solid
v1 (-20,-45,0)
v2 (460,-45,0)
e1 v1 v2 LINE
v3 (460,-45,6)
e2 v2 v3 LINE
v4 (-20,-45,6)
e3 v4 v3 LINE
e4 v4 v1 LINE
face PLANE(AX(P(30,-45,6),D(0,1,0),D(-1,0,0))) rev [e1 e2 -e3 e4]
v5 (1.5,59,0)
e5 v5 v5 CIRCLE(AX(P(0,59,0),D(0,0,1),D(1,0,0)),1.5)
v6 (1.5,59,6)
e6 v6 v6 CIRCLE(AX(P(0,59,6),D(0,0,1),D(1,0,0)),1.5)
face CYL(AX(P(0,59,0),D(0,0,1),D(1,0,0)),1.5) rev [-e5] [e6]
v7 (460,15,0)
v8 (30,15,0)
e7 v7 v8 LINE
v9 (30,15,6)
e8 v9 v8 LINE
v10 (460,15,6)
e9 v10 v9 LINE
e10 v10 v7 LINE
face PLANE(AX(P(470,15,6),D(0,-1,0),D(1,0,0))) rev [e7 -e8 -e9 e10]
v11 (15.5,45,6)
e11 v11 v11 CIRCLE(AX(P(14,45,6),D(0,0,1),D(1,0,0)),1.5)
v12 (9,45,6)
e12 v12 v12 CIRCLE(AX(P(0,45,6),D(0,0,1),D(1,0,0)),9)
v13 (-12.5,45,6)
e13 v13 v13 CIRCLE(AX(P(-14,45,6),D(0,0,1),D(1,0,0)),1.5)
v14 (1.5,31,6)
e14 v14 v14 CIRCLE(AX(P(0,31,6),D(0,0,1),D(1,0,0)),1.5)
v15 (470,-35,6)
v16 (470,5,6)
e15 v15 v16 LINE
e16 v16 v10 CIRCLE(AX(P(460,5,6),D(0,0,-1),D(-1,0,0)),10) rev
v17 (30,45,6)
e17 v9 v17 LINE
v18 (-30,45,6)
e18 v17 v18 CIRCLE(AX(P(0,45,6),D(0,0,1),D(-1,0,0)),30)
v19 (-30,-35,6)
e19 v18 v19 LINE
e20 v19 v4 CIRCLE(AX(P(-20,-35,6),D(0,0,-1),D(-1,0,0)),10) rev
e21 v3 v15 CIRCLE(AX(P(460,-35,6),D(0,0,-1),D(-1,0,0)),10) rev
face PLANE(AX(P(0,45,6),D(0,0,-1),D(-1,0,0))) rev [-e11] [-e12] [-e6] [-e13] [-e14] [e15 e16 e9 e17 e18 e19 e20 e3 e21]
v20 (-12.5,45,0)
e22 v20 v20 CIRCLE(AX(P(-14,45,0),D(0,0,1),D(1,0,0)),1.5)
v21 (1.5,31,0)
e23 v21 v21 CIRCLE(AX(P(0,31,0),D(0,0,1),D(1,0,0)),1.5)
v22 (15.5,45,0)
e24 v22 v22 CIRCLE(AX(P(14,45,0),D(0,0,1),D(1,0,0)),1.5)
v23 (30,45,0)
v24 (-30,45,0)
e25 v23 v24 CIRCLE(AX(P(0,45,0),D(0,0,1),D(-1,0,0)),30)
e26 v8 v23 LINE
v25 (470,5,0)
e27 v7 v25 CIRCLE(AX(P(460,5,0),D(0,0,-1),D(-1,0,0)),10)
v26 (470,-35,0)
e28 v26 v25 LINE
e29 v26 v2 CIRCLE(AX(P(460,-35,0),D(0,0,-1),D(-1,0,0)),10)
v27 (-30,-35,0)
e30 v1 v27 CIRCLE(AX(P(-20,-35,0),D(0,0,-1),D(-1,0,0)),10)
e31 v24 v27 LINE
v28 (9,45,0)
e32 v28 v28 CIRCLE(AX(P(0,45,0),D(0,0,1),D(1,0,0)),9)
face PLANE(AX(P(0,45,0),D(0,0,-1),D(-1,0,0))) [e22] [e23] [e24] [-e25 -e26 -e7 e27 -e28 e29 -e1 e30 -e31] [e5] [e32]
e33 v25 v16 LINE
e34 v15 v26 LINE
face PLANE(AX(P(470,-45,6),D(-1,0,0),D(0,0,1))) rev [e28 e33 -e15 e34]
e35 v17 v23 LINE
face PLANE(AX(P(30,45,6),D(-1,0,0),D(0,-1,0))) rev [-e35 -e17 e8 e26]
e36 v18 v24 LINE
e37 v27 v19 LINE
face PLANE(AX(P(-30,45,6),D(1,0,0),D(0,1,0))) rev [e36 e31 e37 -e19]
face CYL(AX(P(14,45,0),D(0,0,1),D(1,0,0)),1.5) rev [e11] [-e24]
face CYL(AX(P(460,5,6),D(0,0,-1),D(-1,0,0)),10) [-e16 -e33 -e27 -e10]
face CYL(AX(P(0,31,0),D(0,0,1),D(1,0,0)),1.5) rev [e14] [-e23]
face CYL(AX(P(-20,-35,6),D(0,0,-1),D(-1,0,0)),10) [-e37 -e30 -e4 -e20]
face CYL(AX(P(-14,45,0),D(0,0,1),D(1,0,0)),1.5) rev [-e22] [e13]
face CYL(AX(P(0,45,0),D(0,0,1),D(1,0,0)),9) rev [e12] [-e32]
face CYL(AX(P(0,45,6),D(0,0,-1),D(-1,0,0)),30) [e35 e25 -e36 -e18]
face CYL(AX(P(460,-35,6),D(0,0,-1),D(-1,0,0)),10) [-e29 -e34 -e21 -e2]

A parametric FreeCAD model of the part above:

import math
import FreeCAD as App
import Part
import Sketcher


def edges_at(feature, points):
    """Names of the edges that pass closest to the given points."""
    edges = feature.Shape.Edges
    near = lambda p: min(range(len(edges)), key=lambda i: edges[i].distToShape(Part.Vertex(*p))[0])
    return sorted({f"Edge{near(p) + 1}" for p in points})

doc = App.newDocument("Part")
body = doc.addObject("PartDesign::Body", "Body")

# Sketch on XY plane
sketch1 = body.newObject("Sketcher::SketchObject", "Sketch")
sketch1.AttachmentSupport = (doc.getObject("XY_Plane"), [""])
sketch1.MapMode = "FlatFace"
sketch1.addGeometry([
    Part.LineSegment(App.Vector(470, -45, 0), App.Vector(470, 15, 0)),  # 0
    Part.LineSegment(App.Vector(470, 15, 0), App.Vector(30, 15, 0)),  # 1
    Part.LineSegment(App.Vector(30, 15, 0), App.Vector(30, 45, 0)),  # 2
    Part.ArcOfCircle(Part.Circle(App.Vector(0, 45, 0), App.Vector(0, 0, 1), 30), math.radians(0), math.radians(180)),  # 3
    Part.LineSegment(App.Vector(-30, 45, 0), App.Vector(-30, -45, 0)),  # 4
    Part.LineSegment(App.Vector(-30, -45, 0), App.Vector(470, -45, 0)),  # 5
], False)
sketch1.addConstraint([
    Sketcher.Constraint("Coincident", 0, 2, 1, 1),
    Sketcher.Constraint("Coincident", 1, 2, 2, 1),
    Sketcher.Constraint("Tangent", 2, 2, 3, 1),
    Sketcher.Constraint("Tangent", 3, 2, 4, 1),
    Sketcher.Constraint("Coincident", 4, 2, 5, 1),
    Sketcher.Constraint("Coincident", 5, 2, 0, 1),
    Sketcher.Constraint("Vertical", 0),
    Sketcher.Constraint("Horizontal", 1),
    Sketcher.Constraint("Vertical", 2),
    Sketcher.Constraint("Vertical", 4),
    Sketcher.Constraint("Horizontal", 5),
    Sketcher.Constraint("Symmetric", 2, 2, 4, 2, -1, 1),
    Sketcher.Constraint("Radius", 3, 30.0),
    Sketcher.Constraint("DistanceX", 1, 2, 1, 1, 440.0),
    Sketcher.Constraint("DistanceY", 0, 1, 0, 2, 60.0),
    Sketcher.Constraint("DistanceY", 2, 1, 2, 2, 30.0),
])
pad1 = body.newObject("PartDesign::Pad", "Pad")
pad1.Profile = sketch1
pad1.Length = 6
doc.recompute()

fillet = body.newObject("PartDesign::Fillet", "Fillet")
fillet.Base = (pad1, edges_at(pad1, [(-30, -45, 3)]))
fillet.Radius = 10
doc.recompute()

fillet2 = body.newObject("PartDesign::Fillet", "Fillet001")
fillet2.Base = (fillet, edges_at(fillet, [(470, 15, 3), (470, -45, 3)]))
fillet2.Radius = 10

# Sketch on XY plane
sketch2 = body.newObject("Sketcher::SketchObject", "Sketch001")
sketch2.AttachmentSupport = (doc.getObject("XY_Plane"), [""])
sketch2.MapMode = "FlatFace"
sketch2.AttachmentOffset = App.Placement(App.Vector(0, 0, 6), App.Rotation())
sketch2.addGeometry(Part.Circle(App.Vector(0, 45, 0), App.Vector(0, 0, 1), 9), False)
sketch2.addConstraint([
    Sketcher.Constraint("PointOnObject", 0, 3, -2),
    Sketcher.Constraint("Diameter", 0, 18.0),
    Sketcher.Constraint("DistanceY", -1, 1, 0, 3, 45.0),
])
pocket1 = body.newObject("PartDesign::Pocket", "Pocket")
pocket1.Profile = sketch2
pocket1.Type = "ThroughAll"

# Sketch on XY plane
sketch3 = body.newObject("Sketcher::SketchObject", "Sketch002")
sketch3.AttachmentSupport = (doc.getObject("XY_Plane"), [""])
sketch3.MapMode = "FlatFace"
sketch3.AttachmentOffset = App.Placement(App.Vector(0, 0, 6), App.Rotation())
sketch3.addGeometry([
    Part.Circle(App.Vector(0, 31, 0), App.Vector(0, 0, 1), 1.5),
    Part.Circle(App.Vector(14, 45, 0), App.Vector(0, 0, 1), 1.5),
    Part.Circle(App.Vector(0, 59, 0), App.Vector(0, 0, 1), 1.5),
    Part.Circle(App.Vector(-14, 45, 0), App.Vector(0, 0, 1), 1.5),
], False)
sketch3.addConstraint([
    Sketcher.Constraint("Equal", 0, 1),
    Sketcher.Constraint("Equal", 1, 2),
    Sketcher.Constraint("Equal", 2, 3),
    Sketcher.Constraint("Symmetric", 1, 3, 3, 3, -2),
    Sketcher.Constraint("PointOnObject", 0, 3, -2),
    Sketcher.Constraint("PointOnObject", 2, 3, -2),
    Sketcher.Constraint("Diameter", 0, 3.0),
    Sketcher.Constraint("DistanceY", -1, 1, 0, 3, 31.0),
    Sketcher.Constraint("DistanceX", -1, 1, 1, 3, 14.0),
    Sketcher.Constraint("DistanceY", -1, 1, 1, 3, 45.0),
    Sketcher.Constraint("DistanceY", -1, 1, 2, 3, 59.0),
])
pocket2 = body.newObject("PartDesign::Pocket", "Pocket001")
pocket2.Profile = sketch3
pocket2.Type = "ThroughAll"

doc.recompute()
